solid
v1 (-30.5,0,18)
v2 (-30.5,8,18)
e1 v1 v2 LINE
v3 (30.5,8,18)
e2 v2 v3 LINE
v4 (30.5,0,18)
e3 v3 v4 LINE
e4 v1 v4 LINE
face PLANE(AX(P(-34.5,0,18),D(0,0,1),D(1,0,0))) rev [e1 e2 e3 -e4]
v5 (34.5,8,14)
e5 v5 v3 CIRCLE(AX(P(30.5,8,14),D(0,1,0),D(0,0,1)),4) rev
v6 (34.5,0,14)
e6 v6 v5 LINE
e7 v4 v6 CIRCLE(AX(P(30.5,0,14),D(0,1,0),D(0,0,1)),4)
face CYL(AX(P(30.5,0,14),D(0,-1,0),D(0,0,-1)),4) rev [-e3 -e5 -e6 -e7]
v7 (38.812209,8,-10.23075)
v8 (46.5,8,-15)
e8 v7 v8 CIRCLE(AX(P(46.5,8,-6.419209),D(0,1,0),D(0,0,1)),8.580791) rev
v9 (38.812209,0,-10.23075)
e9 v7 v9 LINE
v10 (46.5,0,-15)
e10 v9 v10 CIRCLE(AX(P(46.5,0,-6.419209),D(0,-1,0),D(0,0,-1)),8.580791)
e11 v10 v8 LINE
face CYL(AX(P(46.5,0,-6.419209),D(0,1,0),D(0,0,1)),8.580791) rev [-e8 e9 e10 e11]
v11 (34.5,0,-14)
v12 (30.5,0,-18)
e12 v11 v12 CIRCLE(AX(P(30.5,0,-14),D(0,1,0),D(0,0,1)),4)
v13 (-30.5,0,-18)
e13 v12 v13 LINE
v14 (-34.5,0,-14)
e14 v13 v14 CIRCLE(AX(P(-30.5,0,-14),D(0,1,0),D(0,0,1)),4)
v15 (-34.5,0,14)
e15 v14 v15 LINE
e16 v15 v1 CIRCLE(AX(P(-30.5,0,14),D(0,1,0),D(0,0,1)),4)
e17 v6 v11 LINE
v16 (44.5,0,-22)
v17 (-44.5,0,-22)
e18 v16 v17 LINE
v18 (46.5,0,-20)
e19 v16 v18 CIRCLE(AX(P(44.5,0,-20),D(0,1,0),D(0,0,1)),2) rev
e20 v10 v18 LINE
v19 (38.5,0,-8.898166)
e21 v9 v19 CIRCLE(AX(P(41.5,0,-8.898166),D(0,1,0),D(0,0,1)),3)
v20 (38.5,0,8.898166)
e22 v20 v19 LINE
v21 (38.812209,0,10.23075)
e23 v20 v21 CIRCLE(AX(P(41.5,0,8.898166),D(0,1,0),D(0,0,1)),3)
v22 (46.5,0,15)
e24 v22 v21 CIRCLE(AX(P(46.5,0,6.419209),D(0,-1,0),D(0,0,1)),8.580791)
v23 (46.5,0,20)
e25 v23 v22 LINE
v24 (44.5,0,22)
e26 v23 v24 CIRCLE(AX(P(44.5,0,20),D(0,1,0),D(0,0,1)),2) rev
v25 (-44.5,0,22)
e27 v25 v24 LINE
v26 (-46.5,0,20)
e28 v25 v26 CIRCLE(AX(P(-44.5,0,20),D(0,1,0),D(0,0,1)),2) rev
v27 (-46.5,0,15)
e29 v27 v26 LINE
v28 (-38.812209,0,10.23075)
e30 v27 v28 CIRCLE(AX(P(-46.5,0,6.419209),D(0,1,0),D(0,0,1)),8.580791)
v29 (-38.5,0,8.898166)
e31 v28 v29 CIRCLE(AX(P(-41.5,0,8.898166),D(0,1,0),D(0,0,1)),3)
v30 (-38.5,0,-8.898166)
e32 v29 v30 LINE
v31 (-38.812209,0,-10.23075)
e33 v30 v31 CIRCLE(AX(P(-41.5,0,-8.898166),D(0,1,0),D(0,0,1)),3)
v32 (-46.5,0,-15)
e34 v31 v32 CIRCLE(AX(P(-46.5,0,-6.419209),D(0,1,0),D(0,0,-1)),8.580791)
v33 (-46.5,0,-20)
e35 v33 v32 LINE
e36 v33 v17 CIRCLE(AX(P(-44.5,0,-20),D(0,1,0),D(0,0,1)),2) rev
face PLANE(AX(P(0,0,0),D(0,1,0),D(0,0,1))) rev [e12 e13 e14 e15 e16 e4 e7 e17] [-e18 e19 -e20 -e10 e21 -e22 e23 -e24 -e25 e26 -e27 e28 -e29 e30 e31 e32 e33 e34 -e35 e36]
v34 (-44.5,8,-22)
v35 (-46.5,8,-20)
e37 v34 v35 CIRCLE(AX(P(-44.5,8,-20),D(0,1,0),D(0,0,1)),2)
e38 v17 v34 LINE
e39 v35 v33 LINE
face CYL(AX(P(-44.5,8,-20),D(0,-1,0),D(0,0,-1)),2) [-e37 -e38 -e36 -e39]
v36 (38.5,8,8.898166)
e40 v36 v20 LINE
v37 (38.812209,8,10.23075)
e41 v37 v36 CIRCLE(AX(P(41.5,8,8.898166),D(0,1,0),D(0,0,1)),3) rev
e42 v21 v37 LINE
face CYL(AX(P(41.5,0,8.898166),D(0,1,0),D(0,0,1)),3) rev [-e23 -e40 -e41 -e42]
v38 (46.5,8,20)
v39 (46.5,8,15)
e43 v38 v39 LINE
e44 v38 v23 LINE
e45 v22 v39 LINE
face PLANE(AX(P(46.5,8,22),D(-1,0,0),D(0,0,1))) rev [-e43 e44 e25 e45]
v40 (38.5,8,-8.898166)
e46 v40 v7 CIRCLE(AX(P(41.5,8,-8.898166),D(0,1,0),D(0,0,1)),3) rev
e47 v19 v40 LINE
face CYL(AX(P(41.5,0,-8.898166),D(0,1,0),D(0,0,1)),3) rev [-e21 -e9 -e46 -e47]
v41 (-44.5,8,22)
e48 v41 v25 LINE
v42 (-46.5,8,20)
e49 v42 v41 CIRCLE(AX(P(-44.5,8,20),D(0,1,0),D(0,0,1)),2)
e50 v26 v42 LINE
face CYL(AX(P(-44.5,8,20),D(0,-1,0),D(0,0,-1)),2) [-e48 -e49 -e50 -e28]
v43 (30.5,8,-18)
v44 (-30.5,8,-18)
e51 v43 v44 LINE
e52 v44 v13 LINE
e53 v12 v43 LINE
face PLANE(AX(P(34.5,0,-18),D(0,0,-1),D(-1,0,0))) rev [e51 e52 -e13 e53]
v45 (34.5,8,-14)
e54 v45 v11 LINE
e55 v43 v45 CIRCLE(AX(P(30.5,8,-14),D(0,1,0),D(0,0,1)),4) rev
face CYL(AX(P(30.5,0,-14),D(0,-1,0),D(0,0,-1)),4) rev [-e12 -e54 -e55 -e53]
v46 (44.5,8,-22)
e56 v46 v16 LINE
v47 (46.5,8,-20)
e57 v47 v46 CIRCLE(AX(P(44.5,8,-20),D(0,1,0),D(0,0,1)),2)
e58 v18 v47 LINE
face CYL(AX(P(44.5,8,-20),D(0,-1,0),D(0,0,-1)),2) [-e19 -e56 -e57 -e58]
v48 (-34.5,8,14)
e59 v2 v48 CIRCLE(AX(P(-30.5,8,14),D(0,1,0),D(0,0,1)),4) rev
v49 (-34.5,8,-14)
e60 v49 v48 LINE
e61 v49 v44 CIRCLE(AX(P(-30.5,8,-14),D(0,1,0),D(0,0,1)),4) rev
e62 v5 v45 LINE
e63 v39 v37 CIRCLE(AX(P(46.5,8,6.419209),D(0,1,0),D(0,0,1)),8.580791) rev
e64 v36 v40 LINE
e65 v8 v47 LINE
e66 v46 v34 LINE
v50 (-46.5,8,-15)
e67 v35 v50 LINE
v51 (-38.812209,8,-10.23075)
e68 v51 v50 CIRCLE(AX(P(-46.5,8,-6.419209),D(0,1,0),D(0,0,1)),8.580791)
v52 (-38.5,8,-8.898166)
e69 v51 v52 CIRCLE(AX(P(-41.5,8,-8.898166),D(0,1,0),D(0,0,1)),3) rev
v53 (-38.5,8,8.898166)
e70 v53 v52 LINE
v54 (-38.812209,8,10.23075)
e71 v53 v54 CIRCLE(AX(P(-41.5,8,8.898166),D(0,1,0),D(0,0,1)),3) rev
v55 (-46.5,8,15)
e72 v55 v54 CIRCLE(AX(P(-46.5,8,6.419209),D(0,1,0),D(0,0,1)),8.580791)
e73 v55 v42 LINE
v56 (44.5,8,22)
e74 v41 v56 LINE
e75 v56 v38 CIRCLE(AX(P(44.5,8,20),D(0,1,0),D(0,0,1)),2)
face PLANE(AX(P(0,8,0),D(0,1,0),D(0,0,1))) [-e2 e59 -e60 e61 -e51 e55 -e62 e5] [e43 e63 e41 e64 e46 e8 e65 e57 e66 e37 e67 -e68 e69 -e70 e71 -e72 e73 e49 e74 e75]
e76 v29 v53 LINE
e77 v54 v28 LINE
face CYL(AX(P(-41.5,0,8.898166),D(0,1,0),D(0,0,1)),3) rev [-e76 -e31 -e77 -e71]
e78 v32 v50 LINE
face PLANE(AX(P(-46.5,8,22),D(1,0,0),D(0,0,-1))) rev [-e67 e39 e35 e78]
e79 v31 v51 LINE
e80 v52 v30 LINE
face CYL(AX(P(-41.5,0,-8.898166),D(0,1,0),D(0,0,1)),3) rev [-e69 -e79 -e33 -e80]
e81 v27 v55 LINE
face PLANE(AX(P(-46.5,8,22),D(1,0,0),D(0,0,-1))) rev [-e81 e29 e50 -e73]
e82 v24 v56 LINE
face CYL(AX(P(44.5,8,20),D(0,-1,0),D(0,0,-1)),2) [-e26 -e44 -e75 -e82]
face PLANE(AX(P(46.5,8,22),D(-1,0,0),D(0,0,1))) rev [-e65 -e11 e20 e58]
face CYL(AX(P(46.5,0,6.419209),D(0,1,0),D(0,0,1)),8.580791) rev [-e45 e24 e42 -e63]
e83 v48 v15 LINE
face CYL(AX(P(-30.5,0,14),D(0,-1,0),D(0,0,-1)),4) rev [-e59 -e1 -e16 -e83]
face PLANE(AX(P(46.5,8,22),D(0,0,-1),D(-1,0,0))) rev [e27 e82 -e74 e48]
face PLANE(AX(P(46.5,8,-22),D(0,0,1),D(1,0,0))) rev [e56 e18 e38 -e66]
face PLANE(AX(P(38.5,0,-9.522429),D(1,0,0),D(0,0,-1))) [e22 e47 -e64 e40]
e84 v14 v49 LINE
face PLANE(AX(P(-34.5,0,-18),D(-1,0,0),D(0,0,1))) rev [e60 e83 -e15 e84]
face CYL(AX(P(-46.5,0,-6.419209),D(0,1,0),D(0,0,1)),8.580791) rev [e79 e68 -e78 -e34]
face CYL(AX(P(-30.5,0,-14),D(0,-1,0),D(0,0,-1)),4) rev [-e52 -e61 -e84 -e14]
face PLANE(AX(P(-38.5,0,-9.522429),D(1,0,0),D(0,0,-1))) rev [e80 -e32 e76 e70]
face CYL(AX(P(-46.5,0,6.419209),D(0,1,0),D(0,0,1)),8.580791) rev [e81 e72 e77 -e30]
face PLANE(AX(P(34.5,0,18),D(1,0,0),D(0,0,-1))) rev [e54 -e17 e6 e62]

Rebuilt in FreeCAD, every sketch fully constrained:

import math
import FreeCAD as App
import Part
import Sketcher

V = App.Vector


def edges_at(feature, points):
    """Names of the edges that pass closest to the given points."""
    edges = feature.Shape.Edges
    near = lambda p: min(range(len(edges)), key=lambda i: edges[i].distToShape(Part.Vertex(*p))[0])
    return sorted({f"Edge{near(p) + 1}" for p in points})


def add_polygon(sketch, points):
    """Adds a closed chain of lines whose ends are joined by coincident constraints."""
    first, n = sketch.GeometryCount, len(points)
    for a, b in zip(points, points[1:] + points[:1]):
        sketch.addGeometry(Part.LineSegment(App.Vector(*a, 0), App.Vector(*b, 0)), False)
    for i in range(n):
        sketch.addConstraint(Sketcher.Constraint("Coincident", first + i, 2, first + (i + 1) % n, 1))

doc = App.newDocument("Part")
body = doc.addObject("PartDesign::Body", "Body")

# Sketch on XZ plane
sketch1 = body.newObject("Sketcher::SketchObject", "Sketch")
sketch1.AttachmentSupport = (doc.getObject("XZ_Plane"), [""])
sketch1.MapMode = "FlatFace"
add_polygon(sketch1, [(-46, -22), (-46, 22), (46, 22), (46, -22)])  # lines 0-3
sketch1.addConstraint(Sketcher.Constraint("Vertical", 0))
sketch1.addConstraint(Sketcher.Constraint("Horizontal", 1))
sketch1.addConstraint(Sketcher.Constraint("Vertical", 2))
sketch1.addConstraint(Sketcher.Constraint("Horizontal", 3))
sketch1.addConstraint(Sketcher.Constraint("Symmetric", 0, 2, 2, 2, -1, 1))
sketch1.addConstraint(Sketcher.Constraint("DistanceX", 1, 1, 1, 2, 93.0))
sketch1.addConstraint(Sketcher.Constraint("DistanceY", 0, 1, 0, 2, 44.0))
pad1 = body.newObject("PartDesign::Pad", "Pad")
pad1.Profile = sketch1
pad1.Length = 8
pad1.Reversed = True

# Sketch on XZ plane
sketch2 = body.newObject("Sketcher::SketchObject", "Sketch001")
sketch2.AttachmentSupport = (doc.getObject("XZ_Plane"), [""])
sketch2.MapMode = "FlatFace"
sketch2.AttachmentOffset = App.Placement(V(0, 0, -8), App.Rotation())
add_polygon(sketch2, [(-34, -18), (-34, 18), (34, 18), (34, -18)])  # lines 0-3
sketch2.addConstraint(Sketcher.Constraint("Vertical", 0))
sketch2.addConstraint(Sketcher.Constraint("Horizontal", 1))
sketch2.addConstraint(Sketcher.Constraint("Vertical", 2))
sketch2.addConstraint(Sketcher.Constraint("Horizontal", 3))
sketch2.addConstraint(Sketcher.Constraint("Symmetric", 0, 2, 2, 2, -1, 1))
sketch2.addConstraint(Sketcher.Constraint("DistanceX", 1, 1, 1, 2, 69.0))
sketch2.addConstraint(Sketcher.Constraint("DistanceY", 0, 1, 0, 2, 36.0))
pocket1 = body.newObject("PartDesign::Pocket", "Pocket")
pocket1.Profile = sketch2
pocket1.Length = 8
pocket1.Reversed = True
doc.recompute()

fillet = body.newObject("PartDesign::Fillet", "Fillet")
fillet.Base = (pocket1, edges_at(pocket1, [
    (34.5, 4, 18),
    (-34.5, 4, 18),
    (-34.5, 4, -18),
    (34.5, 4, -18),
]))
fillet.Radius = 4
doc.recompute()

fillet2 = body.newObject("PartDesign::Fillet", "Fillet001")
fillet2.Base = (fillet, edges_at(fillet, [
    (-46.5, 4, -22),
    (46.5, 4, -22),
    (46.5, 4, 22),
    (-46.5, 4, 22),
]))
fillet2.Radius = 2

# Sketch on XZ plane
sketch3 = body.newObject("Sketcher::SketchObject", "Sketch002")
sketch3.AttachmentSupport = (doc.getObject("XZ_Plane"), [""])
sketch3.MapMode = "FlatFace"
sketch3.AttachmentOffset = App.Placement(V(0, 0, 1), App.Rotation())
sketch3.addGeometry(Part.LineSegment(V(-38, 10, 0), V(-38, -10, 0)), False)
sketch3.addGeometry(Part.ArcOfCircle(Part.Circle(V(-46, -6, 0), V(0, 0, 1), 9), math.radians(-90), math.radians(-21)), False)
sketch3.addGeometry(Part.LineSegment(V(-46, -15, 0), V(-46, 15, 0)), False)
sketch3.addGeometry(Part.ArcOfCircle(Part.Circle(V(-46, 6, 0), V(0, 0, 1), 9), math.radians(21), math.radians(90)), False)
sketch3.addConstraint(Sketcher.Constraint("Coincident", 0, 2, 1, 2))
sketch3.addConstraint(Sketcher.Constraint("Coincident", 1, 1, 2, 1))
sketch3.addConstraint(Sketcher.Constraint("Coincident", 2, 2, 3, 2))
sketch3.addConstraint(Sketcher.Constraint("Coincident", 3, 1, 0, 1))
sketch3.addConstraint(Sketcher.Constraint("Vertical", 0))
sketch3.addConstraint(Sketcher.Constraint("Vertical", 2))
sketch3.addConstraint(Sketcher.Constraint("Equal", 1, 3))
sketch3.addConstraint(Sketcher.Constraint("Symmetric", 1, 3, 3, 3, -1))
sketch3.addConstraint(Sketcher.Constraint("Vertical", 3, 3, 1, 1))
sketch3.addConstraint(Sketcher.Constraint("DistanceY", 2, 1, 2, 2, 30.0))
sketch3.addConstraint(Sketcher.Constraint("DistanceX", 1, 3, 0, 2, 8.0))
sketch3.addConstraint(Sketcher.Constraint("DistanceX", 1, 3, -1, 1, 46.5))
sketch3.addConstraint(Sketcher.Constraint("Radius", 1, 8.580791))
pocket2 = body.newObject("PartDesign::Pocket", "Pocket001")
pocket2.Profile = sketch3
pocket2.Length = 10
doc.recompute()

fillet3 = body.newObject("PartDesign::Fillet", "Fillet002")
fillet3.Base = (pocket2, edges_at(pocket2, [(-38.5, 4, -9.522), (-38.5, 4, 9.522)]))
fillet3.Radius = 3
doc.recompute()

mirrored = body.newObject("PartDesign::Mirrored", "Mirrored")
mirrored.Originals = [pocket2]
mirrored.MirrorPlane = (doc.getObject("YZ_Plane"), [""])
body.Tip = mirrored
doc.recompute()

fillet4 = body.newObject("PartDesign::Fillet", "Fillet003")
fillet4.Base = (mirrored, edges_at(mirrored, [(38.5, 4, -9.522), (38.5, 4, 9.522)]))
fillet4.Radius = 3

doc.recompute()
